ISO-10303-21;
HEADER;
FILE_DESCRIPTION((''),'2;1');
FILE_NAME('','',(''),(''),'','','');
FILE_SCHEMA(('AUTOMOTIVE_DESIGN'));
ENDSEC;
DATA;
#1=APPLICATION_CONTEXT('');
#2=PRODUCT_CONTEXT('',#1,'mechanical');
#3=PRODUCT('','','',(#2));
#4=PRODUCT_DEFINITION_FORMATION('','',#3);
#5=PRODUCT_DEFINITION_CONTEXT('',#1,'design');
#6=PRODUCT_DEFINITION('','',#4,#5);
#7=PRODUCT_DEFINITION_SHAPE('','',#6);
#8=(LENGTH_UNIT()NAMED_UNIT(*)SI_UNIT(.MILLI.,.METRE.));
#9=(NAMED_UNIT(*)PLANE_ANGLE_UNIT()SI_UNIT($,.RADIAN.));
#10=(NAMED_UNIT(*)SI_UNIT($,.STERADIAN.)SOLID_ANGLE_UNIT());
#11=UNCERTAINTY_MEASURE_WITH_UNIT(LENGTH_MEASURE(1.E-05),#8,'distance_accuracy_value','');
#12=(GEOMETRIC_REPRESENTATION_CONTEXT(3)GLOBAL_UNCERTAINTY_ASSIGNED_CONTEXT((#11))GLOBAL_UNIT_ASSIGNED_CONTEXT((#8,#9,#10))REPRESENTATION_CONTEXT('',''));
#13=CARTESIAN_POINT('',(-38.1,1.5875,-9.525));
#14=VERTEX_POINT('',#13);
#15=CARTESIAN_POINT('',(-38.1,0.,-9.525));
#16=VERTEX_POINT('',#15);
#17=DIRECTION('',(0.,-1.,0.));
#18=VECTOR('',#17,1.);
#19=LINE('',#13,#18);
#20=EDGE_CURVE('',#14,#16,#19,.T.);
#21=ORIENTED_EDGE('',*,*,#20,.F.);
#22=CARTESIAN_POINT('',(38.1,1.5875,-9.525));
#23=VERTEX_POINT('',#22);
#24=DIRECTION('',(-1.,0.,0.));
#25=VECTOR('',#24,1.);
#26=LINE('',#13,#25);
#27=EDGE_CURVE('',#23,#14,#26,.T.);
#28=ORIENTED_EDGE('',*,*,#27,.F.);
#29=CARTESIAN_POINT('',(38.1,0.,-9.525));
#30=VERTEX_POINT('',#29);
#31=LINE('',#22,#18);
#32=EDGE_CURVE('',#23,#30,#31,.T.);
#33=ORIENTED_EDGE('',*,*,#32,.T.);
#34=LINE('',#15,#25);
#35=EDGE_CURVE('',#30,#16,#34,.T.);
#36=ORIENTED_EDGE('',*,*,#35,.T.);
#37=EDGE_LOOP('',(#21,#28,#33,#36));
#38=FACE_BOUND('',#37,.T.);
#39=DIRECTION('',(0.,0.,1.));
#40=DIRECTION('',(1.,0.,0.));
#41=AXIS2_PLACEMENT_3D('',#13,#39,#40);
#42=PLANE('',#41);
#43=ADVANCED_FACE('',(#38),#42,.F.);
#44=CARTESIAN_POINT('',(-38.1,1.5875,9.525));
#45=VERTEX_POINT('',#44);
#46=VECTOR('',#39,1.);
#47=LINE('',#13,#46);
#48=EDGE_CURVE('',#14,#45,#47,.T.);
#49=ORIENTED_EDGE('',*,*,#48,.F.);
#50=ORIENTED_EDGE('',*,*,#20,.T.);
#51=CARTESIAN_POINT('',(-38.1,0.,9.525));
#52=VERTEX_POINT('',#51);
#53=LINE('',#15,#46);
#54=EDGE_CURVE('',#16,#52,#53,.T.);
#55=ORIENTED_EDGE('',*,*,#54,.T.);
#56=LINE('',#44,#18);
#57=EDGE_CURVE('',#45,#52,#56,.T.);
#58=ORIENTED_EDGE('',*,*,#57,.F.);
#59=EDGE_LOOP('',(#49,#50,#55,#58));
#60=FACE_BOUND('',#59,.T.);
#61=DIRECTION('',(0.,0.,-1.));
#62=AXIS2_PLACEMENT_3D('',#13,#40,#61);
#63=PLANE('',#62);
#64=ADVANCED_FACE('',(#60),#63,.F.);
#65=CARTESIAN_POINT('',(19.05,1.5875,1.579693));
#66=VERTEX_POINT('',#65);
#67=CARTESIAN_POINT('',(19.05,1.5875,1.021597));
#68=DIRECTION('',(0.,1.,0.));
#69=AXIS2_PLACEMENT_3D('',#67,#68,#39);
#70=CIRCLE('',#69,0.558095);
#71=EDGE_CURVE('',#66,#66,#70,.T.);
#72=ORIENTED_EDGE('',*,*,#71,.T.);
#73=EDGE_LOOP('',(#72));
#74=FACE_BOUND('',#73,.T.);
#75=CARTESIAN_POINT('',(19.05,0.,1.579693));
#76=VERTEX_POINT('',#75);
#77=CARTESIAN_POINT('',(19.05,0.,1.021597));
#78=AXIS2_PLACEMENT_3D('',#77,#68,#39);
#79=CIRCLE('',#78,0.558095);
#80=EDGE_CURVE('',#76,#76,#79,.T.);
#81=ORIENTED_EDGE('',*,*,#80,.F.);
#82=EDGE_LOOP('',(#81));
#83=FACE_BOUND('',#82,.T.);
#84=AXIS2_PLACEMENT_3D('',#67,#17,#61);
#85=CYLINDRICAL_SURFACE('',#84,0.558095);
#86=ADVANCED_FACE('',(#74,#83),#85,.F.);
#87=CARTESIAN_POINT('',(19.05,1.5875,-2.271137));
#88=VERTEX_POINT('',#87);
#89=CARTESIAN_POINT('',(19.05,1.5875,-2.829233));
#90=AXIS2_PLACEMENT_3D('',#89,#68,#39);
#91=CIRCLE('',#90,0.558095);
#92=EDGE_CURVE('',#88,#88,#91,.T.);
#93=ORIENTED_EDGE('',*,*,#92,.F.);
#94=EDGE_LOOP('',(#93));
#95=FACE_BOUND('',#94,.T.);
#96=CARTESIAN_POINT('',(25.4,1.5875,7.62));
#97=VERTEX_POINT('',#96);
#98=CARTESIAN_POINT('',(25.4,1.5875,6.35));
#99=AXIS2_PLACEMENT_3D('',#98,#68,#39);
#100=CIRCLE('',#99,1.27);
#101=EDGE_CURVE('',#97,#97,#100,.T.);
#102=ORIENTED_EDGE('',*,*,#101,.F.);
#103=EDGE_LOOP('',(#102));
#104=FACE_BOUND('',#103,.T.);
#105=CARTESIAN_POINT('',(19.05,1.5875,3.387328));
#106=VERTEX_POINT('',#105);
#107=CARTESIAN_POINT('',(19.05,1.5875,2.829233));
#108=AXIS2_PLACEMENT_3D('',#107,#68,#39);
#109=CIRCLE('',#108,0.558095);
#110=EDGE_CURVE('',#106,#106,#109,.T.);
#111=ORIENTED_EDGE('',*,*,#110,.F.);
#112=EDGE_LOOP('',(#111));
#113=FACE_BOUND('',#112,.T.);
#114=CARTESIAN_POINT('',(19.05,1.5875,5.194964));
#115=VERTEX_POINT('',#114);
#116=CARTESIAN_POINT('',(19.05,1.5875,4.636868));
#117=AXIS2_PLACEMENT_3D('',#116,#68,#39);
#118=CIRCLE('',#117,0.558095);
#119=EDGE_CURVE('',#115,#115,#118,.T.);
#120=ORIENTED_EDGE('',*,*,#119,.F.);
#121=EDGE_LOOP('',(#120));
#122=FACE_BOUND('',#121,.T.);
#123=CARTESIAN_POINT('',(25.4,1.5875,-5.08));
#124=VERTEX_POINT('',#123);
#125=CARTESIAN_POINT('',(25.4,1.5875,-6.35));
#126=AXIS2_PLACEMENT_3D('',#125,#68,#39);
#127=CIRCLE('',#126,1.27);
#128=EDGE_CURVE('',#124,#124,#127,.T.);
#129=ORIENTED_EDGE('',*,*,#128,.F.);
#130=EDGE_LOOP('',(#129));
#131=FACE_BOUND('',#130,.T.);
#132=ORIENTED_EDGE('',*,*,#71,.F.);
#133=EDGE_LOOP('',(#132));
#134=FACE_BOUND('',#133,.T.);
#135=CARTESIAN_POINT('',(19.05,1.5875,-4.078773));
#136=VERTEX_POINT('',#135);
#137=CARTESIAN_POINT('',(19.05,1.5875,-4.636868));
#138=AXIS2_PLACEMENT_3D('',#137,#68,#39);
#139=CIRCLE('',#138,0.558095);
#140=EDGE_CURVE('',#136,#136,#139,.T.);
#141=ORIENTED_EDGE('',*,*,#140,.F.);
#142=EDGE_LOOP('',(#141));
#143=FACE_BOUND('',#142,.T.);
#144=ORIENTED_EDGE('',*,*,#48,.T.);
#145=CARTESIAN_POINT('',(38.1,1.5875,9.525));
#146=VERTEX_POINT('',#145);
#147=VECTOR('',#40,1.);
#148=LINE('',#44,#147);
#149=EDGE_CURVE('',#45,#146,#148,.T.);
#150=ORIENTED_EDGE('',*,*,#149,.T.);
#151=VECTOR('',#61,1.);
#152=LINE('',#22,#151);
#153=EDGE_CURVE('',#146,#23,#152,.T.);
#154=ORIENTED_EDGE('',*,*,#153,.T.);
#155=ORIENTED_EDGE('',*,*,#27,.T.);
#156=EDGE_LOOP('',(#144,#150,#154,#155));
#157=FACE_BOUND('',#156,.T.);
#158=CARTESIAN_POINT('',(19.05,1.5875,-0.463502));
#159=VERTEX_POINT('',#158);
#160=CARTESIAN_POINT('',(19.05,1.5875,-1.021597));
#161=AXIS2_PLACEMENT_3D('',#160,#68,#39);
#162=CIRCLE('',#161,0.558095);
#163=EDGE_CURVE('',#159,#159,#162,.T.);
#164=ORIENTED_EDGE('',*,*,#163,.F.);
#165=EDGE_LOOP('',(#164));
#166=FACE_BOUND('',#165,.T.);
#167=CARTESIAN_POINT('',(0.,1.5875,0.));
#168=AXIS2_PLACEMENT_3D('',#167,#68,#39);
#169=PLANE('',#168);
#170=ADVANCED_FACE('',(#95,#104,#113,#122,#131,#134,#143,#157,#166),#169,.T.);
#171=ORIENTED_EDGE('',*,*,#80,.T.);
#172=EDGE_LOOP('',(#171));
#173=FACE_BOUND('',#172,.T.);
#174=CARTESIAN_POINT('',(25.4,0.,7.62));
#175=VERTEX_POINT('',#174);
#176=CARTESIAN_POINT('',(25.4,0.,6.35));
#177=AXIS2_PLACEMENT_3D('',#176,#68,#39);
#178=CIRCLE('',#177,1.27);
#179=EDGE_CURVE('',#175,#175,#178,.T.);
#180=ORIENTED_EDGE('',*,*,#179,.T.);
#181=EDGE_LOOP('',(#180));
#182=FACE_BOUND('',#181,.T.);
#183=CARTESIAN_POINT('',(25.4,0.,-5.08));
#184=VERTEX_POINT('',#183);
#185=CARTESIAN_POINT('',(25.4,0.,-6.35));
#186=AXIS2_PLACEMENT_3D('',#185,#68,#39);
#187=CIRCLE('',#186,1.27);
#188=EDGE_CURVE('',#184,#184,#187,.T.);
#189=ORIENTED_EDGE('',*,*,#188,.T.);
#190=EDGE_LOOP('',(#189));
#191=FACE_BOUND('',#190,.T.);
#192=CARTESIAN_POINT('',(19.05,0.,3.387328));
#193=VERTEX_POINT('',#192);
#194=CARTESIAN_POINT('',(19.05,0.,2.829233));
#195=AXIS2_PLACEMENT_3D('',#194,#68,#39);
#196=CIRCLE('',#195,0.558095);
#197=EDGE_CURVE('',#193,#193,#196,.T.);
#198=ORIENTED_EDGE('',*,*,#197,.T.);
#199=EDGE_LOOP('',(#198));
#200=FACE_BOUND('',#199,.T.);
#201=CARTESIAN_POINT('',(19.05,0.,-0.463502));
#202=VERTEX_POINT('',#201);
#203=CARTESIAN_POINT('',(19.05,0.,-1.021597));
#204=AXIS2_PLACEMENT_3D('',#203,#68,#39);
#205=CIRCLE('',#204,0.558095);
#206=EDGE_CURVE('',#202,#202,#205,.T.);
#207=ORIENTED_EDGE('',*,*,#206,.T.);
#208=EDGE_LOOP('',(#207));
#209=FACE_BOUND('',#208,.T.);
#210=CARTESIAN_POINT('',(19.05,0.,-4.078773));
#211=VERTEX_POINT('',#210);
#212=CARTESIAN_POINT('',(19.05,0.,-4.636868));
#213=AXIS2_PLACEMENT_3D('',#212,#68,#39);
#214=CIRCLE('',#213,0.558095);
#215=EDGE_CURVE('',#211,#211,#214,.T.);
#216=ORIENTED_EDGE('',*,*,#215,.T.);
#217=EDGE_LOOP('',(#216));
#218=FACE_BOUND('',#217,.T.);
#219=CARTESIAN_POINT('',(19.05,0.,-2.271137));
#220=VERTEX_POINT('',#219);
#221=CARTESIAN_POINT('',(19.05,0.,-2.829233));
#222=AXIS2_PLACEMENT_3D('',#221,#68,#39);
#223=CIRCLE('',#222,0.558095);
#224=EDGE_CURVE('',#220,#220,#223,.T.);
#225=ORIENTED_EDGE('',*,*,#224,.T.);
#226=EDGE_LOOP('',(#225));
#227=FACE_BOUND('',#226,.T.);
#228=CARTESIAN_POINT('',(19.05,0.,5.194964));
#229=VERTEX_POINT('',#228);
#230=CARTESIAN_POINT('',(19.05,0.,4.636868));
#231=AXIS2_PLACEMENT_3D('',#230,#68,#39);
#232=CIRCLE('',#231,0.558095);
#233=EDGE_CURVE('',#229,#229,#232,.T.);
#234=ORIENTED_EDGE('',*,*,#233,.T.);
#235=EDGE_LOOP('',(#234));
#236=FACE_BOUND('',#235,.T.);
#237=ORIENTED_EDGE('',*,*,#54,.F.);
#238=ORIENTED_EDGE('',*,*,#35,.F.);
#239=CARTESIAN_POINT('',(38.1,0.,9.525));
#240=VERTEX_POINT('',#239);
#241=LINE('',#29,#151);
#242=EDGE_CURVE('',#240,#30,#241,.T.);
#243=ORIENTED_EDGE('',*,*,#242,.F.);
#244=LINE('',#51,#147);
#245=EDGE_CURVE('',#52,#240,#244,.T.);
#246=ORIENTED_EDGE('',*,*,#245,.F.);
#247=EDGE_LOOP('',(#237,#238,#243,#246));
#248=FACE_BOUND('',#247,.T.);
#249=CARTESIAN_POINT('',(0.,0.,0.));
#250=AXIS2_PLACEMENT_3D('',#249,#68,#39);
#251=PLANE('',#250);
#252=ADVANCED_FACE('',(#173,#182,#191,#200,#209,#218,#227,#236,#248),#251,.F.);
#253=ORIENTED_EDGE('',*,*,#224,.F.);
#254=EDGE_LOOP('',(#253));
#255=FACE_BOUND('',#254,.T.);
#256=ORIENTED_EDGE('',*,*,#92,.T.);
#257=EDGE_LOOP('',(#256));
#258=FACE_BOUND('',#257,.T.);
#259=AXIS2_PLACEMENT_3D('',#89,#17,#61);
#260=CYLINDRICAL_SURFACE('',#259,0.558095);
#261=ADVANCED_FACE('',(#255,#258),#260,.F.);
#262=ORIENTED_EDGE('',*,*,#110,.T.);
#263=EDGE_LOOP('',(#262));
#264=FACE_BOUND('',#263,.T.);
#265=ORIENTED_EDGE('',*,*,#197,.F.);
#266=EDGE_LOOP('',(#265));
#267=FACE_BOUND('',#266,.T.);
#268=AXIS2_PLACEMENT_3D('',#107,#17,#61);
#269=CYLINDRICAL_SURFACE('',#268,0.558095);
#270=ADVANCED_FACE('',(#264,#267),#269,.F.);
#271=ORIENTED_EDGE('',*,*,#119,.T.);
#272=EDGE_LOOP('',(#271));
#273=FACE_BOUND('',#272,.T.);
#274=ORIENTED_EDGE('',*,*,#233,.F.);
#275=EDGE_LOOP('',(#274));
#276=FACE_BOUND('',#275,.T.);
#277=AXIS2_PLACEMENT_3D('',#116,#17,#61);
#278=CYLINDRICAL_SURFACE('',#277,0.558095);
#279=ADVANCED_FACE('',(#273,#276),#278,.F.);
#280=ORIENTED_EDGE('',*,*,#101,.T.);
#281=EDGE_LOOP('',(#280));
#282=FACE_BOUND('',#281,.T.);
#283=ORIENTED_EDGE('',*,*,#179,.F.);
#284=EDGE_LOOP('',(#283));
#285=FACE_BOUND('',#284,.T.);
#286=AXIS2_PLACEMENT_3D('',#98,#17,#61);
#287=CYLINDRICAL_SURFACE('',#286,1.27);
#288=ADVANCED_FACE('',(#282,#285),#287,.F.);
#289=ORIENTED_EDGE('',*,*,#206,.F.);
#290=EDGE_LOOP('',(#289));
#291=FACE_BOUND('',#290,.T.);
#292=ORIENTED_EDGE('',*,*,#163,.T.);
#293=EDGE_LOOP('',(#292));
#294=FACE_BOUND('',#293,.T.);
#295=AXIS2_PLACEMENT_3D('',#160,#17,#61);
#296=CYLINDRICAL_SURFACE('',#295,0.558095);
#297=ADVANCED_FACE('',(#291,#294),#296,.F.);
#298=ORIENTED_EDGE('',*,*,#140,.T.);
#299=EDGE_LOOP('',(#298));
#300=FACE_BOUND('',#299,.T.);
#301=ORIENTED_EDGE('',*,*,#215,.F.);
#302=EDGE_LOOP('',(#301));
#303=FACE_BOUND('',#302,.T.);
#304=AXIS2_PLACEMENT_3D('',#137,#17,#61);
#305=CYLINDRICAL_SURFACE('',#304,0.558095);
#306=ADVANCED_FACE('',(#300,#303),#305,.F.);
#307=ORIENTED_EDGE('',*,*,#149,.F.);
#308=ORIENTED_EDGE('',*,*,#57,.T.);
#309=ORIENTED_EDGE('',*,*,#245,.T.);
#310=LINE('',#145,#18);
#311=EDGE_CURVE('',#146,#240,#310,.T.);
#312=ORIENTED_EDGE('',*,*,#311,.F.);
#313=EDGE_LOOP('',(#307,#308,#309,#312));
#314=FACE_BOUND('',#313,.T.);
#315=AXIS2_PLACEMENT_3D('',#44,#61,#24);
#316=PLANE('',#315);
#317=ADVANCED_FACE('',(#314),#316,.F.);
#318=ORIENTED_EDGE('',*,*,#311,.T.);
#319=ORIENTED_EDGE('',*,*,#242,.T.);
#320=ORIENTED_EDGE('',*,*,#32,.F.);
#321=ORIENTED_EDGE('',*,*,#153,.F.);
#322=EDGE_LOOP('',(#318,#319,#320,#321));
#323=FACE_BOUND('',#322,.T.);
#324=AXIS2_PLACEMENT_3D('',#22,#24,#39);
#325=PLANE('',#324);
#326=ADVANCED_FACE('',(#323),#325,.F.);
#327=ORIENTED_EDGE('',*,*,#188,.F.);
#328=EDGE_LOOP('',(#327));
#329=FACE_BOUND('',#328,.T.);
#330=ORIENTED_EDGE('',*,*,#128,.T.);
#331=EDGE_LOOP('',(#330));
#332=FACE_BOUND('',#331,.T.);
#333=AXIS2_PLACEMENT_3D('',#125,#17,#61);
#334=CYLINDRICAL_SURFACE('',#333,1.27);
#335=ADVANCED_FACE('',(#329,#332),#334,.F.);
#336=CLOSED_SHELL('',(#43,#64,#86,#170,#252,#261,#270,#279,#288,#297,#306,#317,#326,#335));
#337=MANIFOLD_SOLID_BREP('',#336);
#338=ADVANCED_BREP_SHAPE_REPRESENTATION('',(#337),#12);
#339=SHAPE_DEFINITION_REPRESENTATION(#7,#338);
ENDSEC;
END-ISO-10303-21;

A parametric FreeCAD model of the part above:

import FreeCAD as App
import Part
import Sketcher
Q = App.Units.Quantity


def add_polygon(sketch, points):
    """Adds a closed chain of lines whose ends are joined by coincident constraints."""
    first, n = sketch.GeometryCount, len(points)
    for a, b in zip(points, points[1:] + points[:1]):
        sketch.addGeometry(Part.LineSegment(App.Vector(*a, 0), App.Vector(*b, 0)), False)
    for i in range(n):
        sketch.addConstraint(Sketcher.Constraint("Coincident", first + i, 2, first + (i + 1) % n, 1))

doc = App.newDocument("Part")
params = doc.addObject("Spreadsheet::Sheet", "Params")
for row, (alias, value) in enumerate([
    ("sketch1_diameter", "0.1 in"),
    ("sketch1_width", "3 in"),
    ("sketch1_height", "0.75 in"),
    ("pad1_length", "0.0625 in"),
], start=1):
    params.set(f"A{row}", alias)
    params.set(f"B{row}", "=" + value)
    params.setAlias(f"B{row}", alias)

body = doc.addObject("PartDesign::Body", "Body")

# Sketch on XZ plane
sketch1 = body.newObject("Sketcher::SketchObject", "Sketch")
sketch1.AttachmentSupport = (doc.getObject("XZ_Plane"), [""])
sketch1.MapMode = "FlatFace"
add_polygon(sketch1, [(-38.1, -9.525), (-38.1, 9.525), (38.1, 9.525), (38.1, -9.525)])  # lines 0-3
sketch1.addGeometry(Part.Circle(App.Vector(19.05, 4.636868, 0), App.Vector(0, 0, 1), 0.558095), False)  # 4
sketch1.addGeometry(Part.Circle(App.Vector(19.05, 2.829233, 0), App.Vector(0, 0, 1), 0.558095), False)  # 5
sketch1.addGeometry(Part.Circle(App.Vector(19.05, 1.021597, 0), App.Vector(0, 0, 1), 0.558095), False)  # 6
sketch1.addGeometry(Part.Circle(App.Vector(25.4, 6.35, 0), App.Vector(0, 0, 1), 1.27), False)  # 7
sketch1.addGeometry(Part.Circle(App.Vector(19.05, -1.021597, 0), App.Vector(0, 0, 1), 0.558095), False)  # 8
sketch1.addGeometry(Part.Circle(App.Vector(19.05, -2.829233, 0), App.Vector(0, 0, 1), 0.558095), False)  # 9
sketch1.addGeometry(Part.Circle(App.Vector(19.05, -4.636868, 0), App.Vector(0, 0, 1), 0.558095), False)  # 10
sketch1.addGeometry(Part.Circle(App.Vector(25.4, -6.35, 0), App.Vector(0, 0, 1), 1.27), False)  # 11
sketch1.addConstraint(Sketcher.Constraint("Vertical", 0))
sketch1.addConstraint(Sketcher.Constraint("Horizontal", 1))
sketch1.addConstraint(Sketcher.Constraint("Vertical", 2))
sketch1.addConstraint(Sketcher.Constraint("Horizontal", 3))
sketch1.addConstraint(Sketcher.Constraint("Equal", 4, 5))
sketch1.addConstraint(Sketcher.Constraint("Equal", 5, 6))
sketch1.addConstraint(Sketcher.Constraint("Equal", 6, 8))
sketch1.addConstraint(Sketcher.Constraint("Equal", 8, 9))
sketch1.addConstraint(Sketcher.Constraint("Equal", 9, 10))
sketch1.addConstraint(Sketcher.Constraint("Equal", 7, 11))
sketch1.addConstraint(Sketcher.Constraint("Symmetric", 0, 2, 2, 2, -1, 1))
sketch1.addConstraint(Sketcher.Constraint("Symmetric", 6, 3, 8, 3, -1))
sketch1.addConstraint(Sketcher.Constraint("Symmetric", 5, 3, 9, 3, -1))
sketch1.addConstraint(Sketcher.Constraint("Symmetric", 4, 3, 10, 3, -1))
sketch1.addConstraint(Sketcher.Constraint("Symmetric", 7, 3, 11, 3, -1))
sketch1.addConstraint(Sketcher.Constraint("Vertical", 4, 3, 5, 3))
sketch1.addConstraint(Sketcher.Constraint("Vertical", 5, 3, 6, 3))
sketch1.addConstraint(Sketcher.Constraint("Diameter", 7, Q("0.1 in")))
sketch1.addConstraint(Sketcher.Constraint("DistanceX", 1, 1, 1, 2, Q("3 in")))
sketch1.addConstraint(Sketcher.Constraint("DistanceX", -1, 1, 7, 3, Q("1 in")))
sketch1.addConstraint(Sketcher.Constraint("DistanceY", 0, 1, 0, 2, Q("0.75 in")))
sketch1.addConstraint(Sketcher.Constraint("DistanceX", -1, 1, 4, 3, Q("0.75 in")))
sketch1.addConstraint(Sketcher.Constraint("DistanceY", -1, 1, 7, 3, Q("0.25 in")))
sketch1.addConstraint(Sketcher.Constraint("Diameter", 4, Q("1.116191 mm")))
sketch1.addConstraint(Sketcher.Constraint("DistanceY", 9, 3, 4, 3, Q("7.466101 mm")))
sketch1.addConstraint(Sketcher.Constraint("DistanceY", -1, 1, 4, 3, Q("4.636868 mm")))
sketch1.addConstraint(Sketcher.Constraint("DistanceY", 6, 3, 4, 3, Q("3.615271 mm")))
sketch1.setExpression("Constraints[21]", "Params.sketch1_diameter")
sketch1.setExpression("Constraints[22]", "Params.sketch1_width")
sketch1.setExpression("Constraints[24]", "Params.sketch1_height")
pad1 = body.newObject("PartDesign::Pad", "Pad")
pad1.Profile = sketch1
pad1.setExpression("Length", "Params.pad1_length")
pad1.Reversed = True

doc.recompute()
